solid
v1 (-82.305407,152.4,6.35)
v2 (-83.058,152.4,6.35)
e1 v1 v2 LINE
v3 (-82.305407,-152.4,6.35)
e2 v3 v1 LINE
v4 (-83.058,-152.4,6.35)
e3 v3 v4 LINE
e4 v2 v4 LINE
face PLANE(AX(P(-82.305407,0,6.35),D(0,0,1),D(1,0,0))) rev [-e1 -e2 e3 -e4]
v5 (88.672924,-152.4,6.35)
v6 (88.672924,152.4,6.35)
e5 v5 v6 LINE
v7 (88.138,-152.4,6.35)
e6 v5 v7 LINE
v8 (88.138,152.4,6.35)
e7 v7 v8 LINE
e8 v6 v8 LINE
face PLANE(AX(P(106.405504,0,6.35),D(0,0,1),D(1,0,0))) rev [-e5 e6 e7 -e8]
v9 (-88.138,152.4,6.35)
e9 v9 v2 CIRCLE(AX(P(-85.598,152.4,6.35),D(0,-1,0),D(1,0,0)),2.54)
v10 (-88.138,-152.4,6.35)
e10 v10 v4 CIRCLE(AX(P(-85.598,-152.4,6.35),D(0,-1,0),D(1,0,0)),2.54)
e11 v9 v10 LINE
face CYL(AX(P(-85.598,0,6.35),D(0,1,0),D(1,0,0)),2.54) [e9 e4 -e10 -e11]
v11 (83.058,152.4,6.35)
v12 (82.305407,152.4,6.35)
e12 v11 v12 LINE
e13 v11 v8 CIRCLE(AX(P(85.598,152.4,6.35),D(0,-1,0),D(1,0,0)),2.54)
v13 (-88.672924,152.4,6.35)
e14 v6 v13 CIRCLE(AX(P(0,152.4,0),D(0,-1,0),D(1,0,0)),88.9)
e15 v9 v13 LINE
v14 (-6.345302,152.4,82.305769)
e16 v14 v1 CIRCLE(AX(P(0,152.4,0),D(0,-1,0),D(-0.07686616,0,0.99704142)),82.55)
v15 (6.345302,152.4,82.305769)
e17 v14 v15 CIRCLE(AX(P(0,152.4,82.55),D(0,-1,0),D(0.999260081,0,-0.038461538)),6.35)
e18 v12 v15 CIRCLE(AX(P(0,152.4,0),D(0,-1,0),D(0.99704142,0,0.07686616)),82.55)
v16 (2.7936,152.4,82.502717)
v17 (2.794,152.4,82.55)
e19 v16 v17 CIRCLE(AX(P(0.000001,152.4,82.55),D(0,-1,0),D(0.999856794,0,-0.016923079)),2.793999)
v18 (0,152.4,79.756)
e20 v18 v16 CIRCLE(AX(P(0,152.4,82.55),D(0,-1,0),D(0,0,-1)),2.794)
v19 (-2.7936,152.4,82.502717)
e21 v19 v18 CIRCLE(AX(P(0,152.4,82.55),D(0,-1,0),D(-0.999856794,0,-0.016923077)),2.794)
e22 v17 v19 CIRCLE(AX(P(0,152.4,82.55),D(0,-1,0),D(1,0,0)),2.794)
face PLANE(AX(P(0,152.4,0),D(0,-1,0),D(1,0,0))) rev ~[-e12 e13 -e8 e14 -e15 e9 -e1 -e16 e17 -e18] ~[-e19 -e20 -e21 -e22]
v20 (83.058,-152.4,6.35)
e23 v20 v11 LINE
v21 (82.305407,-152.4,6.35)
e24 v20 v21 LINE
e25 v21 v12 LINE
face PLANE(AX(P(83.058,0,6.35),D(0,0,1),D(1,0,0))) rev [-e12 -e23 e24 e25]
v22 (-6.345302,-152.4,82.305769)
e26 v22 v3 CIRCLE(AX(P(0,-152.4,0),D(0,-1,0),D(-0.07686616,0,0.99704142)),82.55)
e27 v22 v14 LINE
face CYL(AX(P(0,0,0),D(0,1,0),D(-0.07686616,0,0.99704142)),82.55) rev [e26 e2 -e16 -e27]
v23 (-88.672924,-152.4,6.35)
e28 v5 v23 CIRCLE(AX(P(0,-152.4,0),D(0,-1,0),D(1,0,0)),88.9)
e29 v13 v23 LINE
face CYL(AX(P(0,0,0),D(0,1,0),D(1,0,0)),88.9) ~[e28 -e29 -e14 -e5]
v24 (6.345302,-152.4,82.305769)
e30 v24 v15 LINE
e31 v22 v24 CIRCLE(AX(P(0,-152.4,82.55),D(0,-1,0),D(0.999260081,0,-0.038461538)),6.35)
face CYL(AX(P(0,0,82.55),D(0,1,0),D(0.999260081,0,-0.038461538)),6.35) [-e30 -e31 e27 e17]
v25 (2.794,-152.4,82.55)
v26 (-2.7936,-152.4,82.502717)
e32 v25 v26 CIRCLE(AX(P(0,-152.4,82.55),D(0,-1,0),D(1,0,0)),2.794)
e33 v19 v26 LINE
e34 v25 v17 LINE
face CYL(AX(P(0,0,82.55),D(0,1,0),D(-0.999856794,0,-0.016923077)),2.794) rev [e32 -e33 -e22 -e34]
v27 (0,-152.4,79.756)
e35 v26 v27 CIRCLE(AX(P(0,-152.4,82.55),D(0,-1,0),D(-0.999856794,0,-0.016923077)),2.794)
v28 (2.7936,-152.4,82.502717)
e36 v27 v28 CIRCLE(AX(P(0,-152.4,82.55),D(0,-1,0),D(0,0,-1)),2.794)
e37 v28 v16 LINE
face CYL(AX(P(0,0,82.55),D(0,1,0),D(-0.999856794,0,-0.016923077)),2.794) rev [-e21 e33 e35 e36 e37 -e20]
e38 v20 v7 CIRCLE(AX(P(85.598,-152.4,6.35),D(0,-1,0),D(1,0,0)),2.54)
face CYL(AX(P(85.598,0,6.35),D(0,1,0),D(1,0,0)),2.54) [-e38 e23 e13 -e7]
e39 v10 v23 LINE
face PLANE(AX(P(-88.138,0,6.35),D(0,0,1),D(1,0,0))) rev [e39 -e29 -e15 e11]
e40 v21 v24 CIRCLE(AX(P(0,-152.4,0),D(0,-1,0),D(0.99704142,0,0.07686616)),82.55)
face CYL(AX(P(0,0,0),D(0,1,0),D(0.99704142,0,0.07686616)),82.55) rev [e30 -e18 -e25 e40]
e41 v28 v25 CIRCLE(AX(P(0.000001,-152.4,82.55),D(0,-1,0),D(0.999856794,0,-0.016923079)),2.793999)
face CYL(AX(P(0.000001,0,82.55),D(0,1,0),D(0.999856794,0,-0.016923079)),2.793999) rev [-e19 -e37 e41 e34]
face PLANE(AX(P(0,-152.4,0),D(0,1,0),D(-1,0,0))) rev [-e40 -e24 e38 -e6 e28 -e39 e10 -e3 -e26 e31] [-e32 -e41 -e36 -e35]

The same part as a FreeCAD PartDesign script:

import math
import FreeCAD as App
import Part
import Sketcher

V = App.Vector
Q = App.Units.Quantity

doc = App.newDocument("Part")
body = doc.addObject("PartDesign::Body", "Body")

# Sketch on XZ plane
sketch1 = body.newObject("Sketcher::SketchObject", "Sketch")
sketch1.AttachmentSupport = (doc.getObject("XZ_Plane"), [""])
sketch1.MapMode = "FlatFace"
sketch1.addGeometry(Part.Circle(V(0, 0, 0), V(0, 0, 1), 88.9), False)
sketch1.addConstraint([
    Sketcher.Constraint("Coincident", 0, 3, -1, 1),
    Sketcher.Constraint("Diameter", 0, Q("7 in")),
])
pad1 = body.newObject("PartDesign::Pad", "Pad")
pad1.Profile = sketch1
pad1.Length = Q("6 in")
pad1.Reversed = True

# Sketch on XZ plane
sketch2 = body.newObject("Sketcher::SketchObject", "Sketch001")
sketch2.AttachmentSupport = (doc.getObject("XZ_Plane"), [""])
sketch2.MapMode = "FlatFace"
sketch2.addGeometry([
    Part.ArcOfCircle(Part.Circle(V(0, 82.55, 0), V(0, 0, 1), 6.35), math.radians(-177.795772), math.radians(-2.204228)),  # 0
    Part.ArcOfCircle(Part.Circle(V(0, 0, 0), V(0, 0, 1), 82.55), math.radians(94.408455), math.radians(175.591545)),  # 1
    Part.ArcOfCircle(Part.Circle(V(-82.55, 0, 0), V(0, 0, 1), 6.35), math.radians(0), math.radians(87.795772)),  # 2
    Part.ArcOfCircle(Part.Circle(V(-82.55, 0, 0), V(0, 0, 1), 6.35), math.radians(-87.795772), math.radians(0)),  # 3
    Part.ArcOfCircle(Part.Circle(V(0, 0, 0), V(0, 0, 1), 82.55), math.radians(-175.591545), math.radians(-94.408455)),  # 4
    Part.ArcOfCircle(Part.Circle(V(0, -82.55, 0), V(0, 0, 1), 6.35), math.radians(2.204228), math.radians(177.795772)),  # 5
    Part.ArcOfCircle(Part.Circle(V(0, 0, 0), V(0, 0, 1), 82.55), math.radians(-85.591545), math.radians(-4.408455)),  # 6
    Part.ArcOfCircle(Part.Circle(V(82.55, 0, 0), V(0, 0, 1), 6.35), math.radians(92.204228), math.radians(267.795772)),  # 7
    Part.ArcOfCircle(Part.Circle(V(0, 0, 0), V(0, 0, 1), 82.55), math.radians(4.408455), math.radians(85.591545)),  # 8
], False)
sketch2.addConstraint([
    Sketcher.Constraint("Coincident", 0, 1, 1, 1),
    Sketcher.Constraint("Coincident", 1, 2, 2, 2),
    Sketcher.Constraint("Tangent", 2, 1, 3, 2),
    Sketcher.Constraint("Coincident", 3, 1, 4, 1),
    Sketcher.Constraint("Coincident", 4, 2, 5, 2),
    Sketcher.Constraint("Coincident", 5, 1, 6, 1),
    Sketcher.Constraint("Coincident", 6, 2, 7, 2),
    Sketcher.Constraint("Coincident", 7, 1, 8, 1),
    Sketcher.Constraint("Coincident", 8, 2, 0, 2),
    Sketcher.Constraint("Coincident", 1, 3, -1, 1),
    Sketcher.Constraint("Coincident", 4, 3, -1, 1),
    Sketcher.Constraint("Coincident", 6, 3, -1, 1),
    Sketcher.Constraint("Coincident", 8, 3, -1, 1),
    Sketcher.Constraint("Equal", 0, 2),
    Sketcher.Constraint("Equal", 2, 3),
    Sketcher.Constraint("Equal", 1, 4),
    Sketcher.Constraint("Equal", 3, 5),
    Sketcher.Constraint("Equal", 4, 6),
    Sketcher.Constraint("Equal", 5, 7),
    Sketcher.Constraint("Equal", 6, 8),
    Sketcher.Constraint("Symmetric", 0, 3, 5, 3, -1, 1),
    Sketcher.Constraint("Symmetric", 2, 3, 7, 3, -1, 1),
    Sketcher.Constraint("PointOnObject", 0, 3, -2),
    Sketcher.Constraint("PointOnObject", 2, 3, -1),
    Sketcher.Constraint("PointOnObject", 2, 1, -1),
    Sketcher.Constraint("Radius", 0, Q("0.25 in")),
    Sketcher.Constraint("Radius", 1, Q("3.25 in")),
    Sketcher.Constraint("DistanceX", 2, 1, -1, 1, Q("3 in")),
    Sketcher.Constraint("DistanceY", 5, 3, 0, 3, Q("6.5 in")),
])
pocket1 = body.newObject("PartDesign::Pocket", "Pocket")
pocket1.Profile = sketch2
pocket1.Type = "ThroughAll"

# Sketch on XZ plane
sketch3 = body.newObject("Sketcher::SketchObject", "Sketch002")
sketch3.AttachmentSupport = (doc.getObject("XZ_Plane"), [""])
sketch3.MapMode = "FlatFace"
sketch3.addGeometry([
    Part.ArcOfCircle(Part.Circle(V(0, 82.55, 0), V(0, 0, 1), 2.794), math.radians(-179.030333), math.radians(-90)),  # 0
    Part.ArcOfCircle(Part.Circle(V(0, 82.55, 0), V(0, 0, 1), 2.794), math.radians(-90), math.radians(-0.969667)),  # 1
    Part.ArcOfCircle(Part.Circle(V(0.000001, 82.55, 0), V(0, 0, 1), 2.793999), math.radians(-0.969667), math.radians(0)),  # 2
    Part.ArcOfCircle(Part.Circle(V(0, 82.55, 0), V(0, 0, 1), 2.794), math.radians(0), math.radians(180.969667)),  # 3
    Part.ArcOfCircle(Part.Circle(V(-82.55, 0, 0), V(0, 0, 1), 2.794), math.radians(89.030333), math.radians(270.969667)),  # 4
    Part.ArcOfCircle(Part.Circle(V(-82.55, 0, 0), V(0, 0, 1), 2.794), math.radians(-89.030333), math.radians(0)),  # 5
    Part.ArcOfCircle(Part.Circle(V(-82.55, 0, 0), V(0, 0, 1), 2.794), math.radians(0), math.radians(89.030333)),  # 6
    Part.ArcOfCircle(Part.Circle(V(82.55, 0, 0), V(0, 0, 1), 2.794), math.radians(180), math.radians(269.030333)),  # 7
    Part.ArcOfCircle(Part.Circle(V(82.55, 0, 0), V(0, 0, 1), 2.794), math.radians(-90.969667), math.radians(0)),  # 8
    Part.ArcOfCircle(Part.Circle(V(82.55, 0, 0), V(0, 0, 1), 2.794), math.radians(0), math.radians(90.969667)),  # 9
    Part.ArcOfCircle(Part.Circle(V(82.55, 0, 0), V(0, 0, 1), 2.794), math.radians(90.969667), math.radians(180)),  # 10
    Part.ArcOfCircle(Part.Circle(V(0.000001, -82.55, 0), V(0, 0, 1), 2.793999), math.radians(0), math.radians(0.969667)),  # 11
    Part.ArcOfCircle(Part.Circle(V(0, -82.55, 0), V(0, 0, 1), 2.794), math.radians(0.969667), math.radians(90)),  # 12
    Part.ArcOfCircle(Part.Circle(V(0, -82.55, 0), V(0, 0, 1), 2.794), math.radians(90), math.radians(179.030333)),  # 13
    Part.ArcOfCircle(Part.Circle(V(0, -82.55, 0), V(0, 0, 1), 2.794), math.radians(179.030333), math.radians(360)),  # 14
], False)
sketch3.addConstraint([
    Sketcher.Constraint("Tangent", 0, 2, 1, 1),
    Sketcher.Constraint("Tangent", 1, 2, 2, 1),
    Sketcher.Constraint("Tangent", 2, 2, 3, 1),
    Sketcher.Constraint("Tangent", 3, 2, 0, 1),
    Sketcher.Constraint("Tangent", 4, 2, 5, 1),
    Sketcher.Constraint("Tangent", 5, 2, 6, 1),
    Sketcher.Constraint("Tangent", 6, 2, 4, 1),
    Sketcher.Constraint("Tangent", 7, 2, 8, 1),
    Sketcher.Constraint("Tangent", 8, 2, 9, 1),
    Sketcher.Constraint("Tangent", 9, 2, 10, 1),
    Sketcher.Constraint("Tangent", 10, 2, 7, 1),
    Sketcher.Constraint("Tangent", 11, 2, 12, 1),
    Sketcher.Constraint("Tangent", 12, 2, 13, 1),
    Sketcher.Constraint("Tangent", 13, 2, 14, 1),
    Sketcher.Constraint("Tangent", 14, 2, 11, 1),
    Sketcher.Constraint("Equal", 0, 1),
    Sketcher.Constraint("Equal", 3, 4),
    Sketcher.Constraint("Equal", 6, 7),
    Sketcher.Constraint("Equal", 7, 8),
    Sketcher.Constraint("Equal", 10, 11),
    Sketcher.Constraint("Equal", 11, 12),
    Sketcher.Constraint("Symmetric", 4, 3, 7, 3, -1, 1),
    Sketcher.Constraint("Symmetric", 0, 3, 11, 3, -1, 1),
    Sketcher.Constraint("Symmetric", 1, 2, 3, 2, -2),
    Sketcher.Constraint("Symmetric", 4, 2, 7, 2, -2),
    Sketcher.Constraint("PointOnObject", 0, 2, -2),
    Sketcher.Constraint("PointOnObject", 5, 2, -1),
    Sketcher.Constraint("PointOnObject", 8, 2, -1),
    Sketcher.Constraint("PointOnObject", 10, 2, -1),
    Sketcher.Constraint("PointOnObject", 12, 2, -2),
    Sketcher.Constraint("Horizontal", 3, 3, 2, 2),
    Sketcher.Constraint("Horizontal", 6, 2, 9, 2),
    Sketcher.Constraint("Horizontal", 11, 2, 13, 2),
    Sketcher.Constraint("Horizontal", 13, 3, 14, 2),
    Sketcher.Constraint("Vertical", 4, 2, 6, 2),
    Sketcher.Constraint("Vertical", 1, 2, 11, 2),
    Sketcher.Constraint("Radius", 0, Q("0.11 in")),
    Sketcher.Constraint("DistanceX", 4, 3, 7, 3, Q("6.5 in")),
    Sketcher.Constraint("DistanceY", -1, 1, 0, 3, Q("3.25 in")),
    Sketcher.Constraint("DistanceX", -1, 1, 1, 2, 2.7936),
    Sketcher.Constraint("DistanceY", 4, 2, -1, 1, 2.7936),
])
pocket2 = body.newObject("PartDesign::Pocket", "Pocket001")
pocket2.Profile = sketch3
pocket2.Type = "ThroughAll"

# Sketch on XZ plane
sketch4 = body.newObject("Sketcher::SketchObject", "Sketch003")
sketch4.AttachmentSupport = (doc.getObject("XZ_Plane"), [""])
sketch4.MapMode = "FlatFace"
sketch4.addGeometry([
    Part.ArcOfCircle(Part.Circle(V(82.55, 0, 0), V(0, 0, 1), 6.35), math.radians(180), math.radians(267.795772)),  # 0
    Part.ArcOfCircle(Part.Circle(V(0, 0, 0), V(0, 0, 1), 82.55), math.radians(-85.591545), math.radians(-4.408455)),  # 1
    Part.ArcOfCircle(Part.Circle(V(0, -82.55, 0), V(0, 0, 1), 6.35), math.radians(2.204228), math.radians(177.795772)),  # 2
    Part.ArcOfCircle(Part.Circle(V(0, 0, 0), V(0, 0, 1), 82.55), math.radians(-175.591545), math.radians(-94.408455)),  # 3
    Part.ArcOfCircle(Part.Circle(V(-82.55, 0, 0), V(0, 0, 1), 6.35), math.radians(-87.795772), math.radians(0)),  # 4
    Part.ArcOfCircle(Part.Circle(V(-82.55, 0, 0), V(0, 0, 1), 6.35), math.radians(0), math.radians(87.795772)),  # 5
    Part.ArcOfCircle(Part.Circle(V(0.063521, -0.004899, 0), V(0, 0, 1), 82.61371), math.radians(175.588275), math.radians(175.591544)),  # 6
    Part.LineSegment(V(-82.305407, 6.35, 0), V(-83.058, 6.35, 0)),  # 7
    Part.ArcOfCircle(Part.Circle(V(-85.598, 6.35, 0), V(0, 0, 1), 2.54), math.radians(180), math.radians(360)),  # 8
    Part.LineSegment(V(-88.138, 6.35, 0), V(-88.9, 6.35, 0)),  # 9
    Part.LineSegment(V(-88.9, 6.35, 0), V(-88.9, 0, 0)),  # 10
    Part.LineSegment(V(-88.9, 0, 0), V(-104.893667, -139.878324, 0)),  # 11
    Part.LineSegment(V(-104.893667, -139.878324, 0), V(114.975105, -122.241944, 0)),  # 12
    Part.LineSegment(V(114.975105, -122.241944, 0), V(179.333255, -117.079571, 0)),  # 13
    Part.LineSegment(V(179.333255, -117.079571, 0), V(106.405504, 6.35, 0)),  # 14
    Part.LineSegment(V(106.405504, 6.35, 0), V(88.138, 6.35, 0)),  # 15
    Part.ArcOfCircle(Part.Circle(V(85.598, 6.35, 0), V(0, 0, 1), 2.54), math.radians(180), math.radians(360)),  # 16
    Part.LineSegment(V(83.058, 6.35, 0), V(82.305407, 6.35, 0)),  # 17
    Part.ArcOfCircle(Part.Circle(V(-0.063498, -0.004897, 0), V(0, 0, 1), 82.613687), math.radians(4.408456), math.radians(4.411725)),  # 18
    Part.ArcOfCircle(Part.Circle(V(82.55, 0, 0), V(0, 0, 1), 6.35), math.radians(92.204228), math.radians(180)),  # 19
], False)
sketch4.addConstraint([
    Sketcher.Constraint("Coincident", 0, 2, 1, 2),
    Sketcher.Constraint("Coincident", 1, 1, 2, 1),
    Sketcher.Constraint("Coincident", 2, 2, 3, 2),
    Sketcher.Constraint("Coincident", 3, 1, 4, 1),
    Sketcher.Constraint("Tangent", 4, 2, 5, 1),
    Sketcher.Constraint("Coincident", 5, 2, 6, 2),
    Sketcher.Constraint("Coincident", 6, 1, 7, 1),
    Sketcher.Constraint("Coincident", 7, 2, 8, 2),
    Sketcher.Constraint("Coincident", 8, 1, 9, 1),
    Sketcher.Constraint("Coincident", 9, 2, 10, 1),
    Sketcher.Constraint("Coincident", 10, 2, 11, 1),
    Sketcher.Constraint("Coincident", 11, 2, 12, 1),
    Sketcher.Constraint("Coincident", 12, 2, 13, 1),
    Sketcher.Constraint("Coincident", 13, 2, 14, 1),
    Sketcher.Constraint("Coincident", 14, 2, 15, 1),
    Sketcher.Constraint("Coincident", 15, 2, 16, 2),
    Sketcher.Constraint("Coincident", 16, 1, 17, 1),
    Sketcher.Constraint("Coincident", 17, 2, 18, 2),
    Sketcher.Constraint("Coincident", 18, 1, 19, 1),
    Sketcher.Constraint("Tangent", 19, 2, 0, 1),
    Sketcher.Constraint("Horizontal", 7),
    Sketcher.Constraint("Horizontal", 9),
    Sketcher.Constraint("Vertical", 10),
    Sketcher.Constraint("Horizontal", 15),
    Sketcher.Constraint("Horizontal", 17),
    Sketcher.Constraint("Coincident", 1, 3, -1, 1),
    Sketcher.Constraint("Coincident", 3, 3, -1, 1),
    Sketcher.Constraint("Equal", 0, 2),
    Sketcher.Constraint("Equal", 1, 3),
    Sketcher.Constraint("Equal", 2, 4),
    Sketcher.Constraint("Equal", 4, 5),
    Sketcher.Constraint("Equal", 8, 16),
    Sketcher.Constraint("Equal", 5, 19),
    Sketcher.Constraint("Symmetric", 0, 3, 4, 3, -1, 1),
    Sketcher.Constraint("Symmetric", 8, 3, 16, 3, -2),
    Sketcher.Constraint("Symmetric", 6, 1, 17, 2, -2),
    Sketcher.Constraint("Symmetric", 3, 1, 5, 2, -1),
    Sketcher.Constraint("PointOnObject", 2, 3, -2),
    Sketcher.Constraint("PointOnObject", 4, 2, -1),
    Sketcher.Constraint("PointOnObject", 10, 2, -1),
    Sketcher.Constraint("PointOnObject", 19, 2, -1),
    Sketcher.Constraint("Parallel", 12, 13),
    Sketcher.Constraint("Horizontal", 6, 3, 18, 3),
    Sketcher.Constraint("Horizontal", 16, 3, 6, 1),
    Sketcher.Constraint("Horizontal", 7, 2, 8, 1),
    Sketcher.Constraint("Horizontal", 9, 2, 14, 2),
    Sketcher.Constraint("Radius", 8, Q("0.1 in")),
    Sketcher.Constraint("Radius", 0, Q("0.25 in")),
    Sketcher.Constraint("Radius", 1, Q("3.25 in")),
    Sketcher.Constraint("DistanceX", 4, 2, -1, 1, Q("3 in")),
    Sketcher.Constraint("DistanceX", 9, 2, 9, 1, Q("0.03 in")),
    Sketcher.Constraint("DistanceY", 10, 2, 10, 1, Q("0.25 in")),
    Sketcher.Constraint("DistanceX", 9, 2, -1, 1, Q("3.5 in")),
    Sketcher.Constraint("DistanceY", 2, 3, 16, 3, Q("3.5 in")),
    Sketcher.Constraint("Radius", 6, 82.61371),
    Sketcher.Constraint("DistanceX", 18, 3, -1, 1, Q("0.0024999 in")),
    Sketcher.Constraint("Radius", 18, 82.613687),
    Sketcher.Constraint("Distance", 11, 140.789711),
    Sketcher.Constraint("DistanceX", 15, 2, 15, 1, 18.267504),
    Sketcher.Constraint("DistanceY", 13, 2, -1, 1, 117.079571),
    Sketcher.Constraint("DistanceX", 11, 2, 1, 1, 111.238968),
    Sketcher.Constraint("DistanceX", 12, 2, 13, 2, 64.35815),
    Sketcher.Constraint("Distance", 12, 220.574973),
])
pocket3 = body.newObject("PartDesign::Pocket", "Pocket002")
pocket3.Profile = sketch4
pocket3.Type = "ThroughAll"
body2 = doc.addObject("PartDesign::Body", "Body001")
doc.recompute()

body2.BaseFeature = body
doc.recompute()

mirroring = doc.addObject("Part::Mirroring", "Mirroring")
mirroring.Source = body
mirroring.Base = V(0, 0, 0)
mirroring.Normal = V(0, -1, 0)
body3 = doc.addObject("PartDesign::Body", "Body002")
body3.BaseFeature = mirroring
boolean = body2.newObject("PartDesign::Boolean", "Boolean")
boolean.Type = "Fuse"
boolean.addObjects([body3])
doc.recompute()
mirroring.Visibility = False

doc.recompute()
